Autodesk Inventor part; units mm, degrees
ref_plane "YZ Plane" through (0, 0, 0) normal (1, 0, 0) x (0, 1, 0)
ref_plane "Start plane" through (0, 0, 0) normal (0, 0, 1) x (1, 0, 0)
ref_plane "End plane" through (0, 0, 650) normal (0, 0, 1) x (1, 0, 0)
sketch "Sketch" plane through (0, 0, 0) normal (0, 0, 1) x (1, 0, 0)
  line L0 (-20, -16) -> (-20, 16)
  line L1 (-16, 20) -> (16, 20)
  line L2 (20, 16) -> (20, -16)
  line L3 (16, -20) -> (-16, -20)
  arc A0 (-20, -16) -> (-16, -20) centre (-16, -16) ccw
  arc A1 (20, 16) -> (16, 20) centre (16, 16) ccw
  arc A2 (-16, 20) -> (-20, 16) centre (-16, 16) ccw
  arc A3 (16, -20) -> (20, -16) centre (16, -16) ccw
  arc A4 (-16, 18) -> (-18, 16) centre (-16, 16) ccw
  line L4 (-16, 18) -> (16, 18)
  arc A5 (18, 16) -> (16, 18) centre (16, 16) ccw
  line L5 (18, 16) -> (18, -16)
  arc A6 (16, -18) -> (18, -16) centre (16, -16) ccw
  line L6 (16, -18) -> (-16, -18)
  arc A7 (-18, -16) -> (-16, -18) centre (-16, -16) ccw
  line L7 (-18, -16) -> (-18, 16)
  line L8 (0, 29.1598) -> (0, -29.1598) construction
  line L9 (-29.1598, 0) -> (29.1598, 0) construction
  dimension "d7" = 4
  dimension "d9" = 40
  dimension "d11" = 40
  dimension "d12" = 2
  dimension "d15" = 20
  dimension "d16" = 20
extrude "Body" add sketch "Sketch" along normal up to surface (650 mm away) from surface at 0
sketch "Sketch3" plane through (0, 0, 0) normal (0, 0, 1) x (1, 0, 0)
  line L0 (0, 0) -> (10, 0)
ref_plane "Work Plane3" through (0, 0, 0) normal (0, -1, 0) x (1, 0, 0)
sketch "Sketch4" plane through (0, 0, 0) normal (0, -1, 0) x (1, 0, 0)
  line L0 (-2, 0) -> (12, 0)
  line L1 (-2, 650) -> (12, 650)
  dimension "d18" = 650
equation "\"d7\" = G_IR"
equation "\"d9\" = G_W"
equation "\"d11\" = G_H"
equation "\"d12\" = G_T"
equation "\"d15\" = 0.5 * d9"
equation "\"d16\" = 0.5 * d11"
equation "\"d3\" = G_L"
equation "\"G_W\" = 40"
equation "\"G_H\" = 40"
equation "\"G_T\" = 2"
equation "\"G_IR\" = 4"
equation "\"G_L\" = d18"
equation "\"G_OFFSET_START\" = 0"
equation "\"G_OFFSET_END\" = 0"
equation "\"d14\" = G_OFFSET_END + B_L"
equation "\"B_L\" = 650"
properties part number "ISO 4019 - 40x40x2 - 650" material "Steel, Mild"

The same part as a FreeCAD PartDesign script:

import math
import FreeCAD as App
import Part
import Sketcher

doc = App.newDocument("Part")
body = doc.addObject("PartDesign::Body", "Body")

sketch1 = body.newObject("Sketcher::SketchObject", "Sketch")
sketch1.AttachmentSupport = (doc.getObject("XY_Plane"), [""])
sketch1.MapMode = "FlatFace"
sketch1.addGeometry([
    Part.LineSegment(App.Vector(-20, 16, 0), App.Vector(-20, -16, 0)),
    Part.ArcOfCircle(Part.Circle(App.Vector(-16, -16, 0), App.Vector(0, 0, 1), 4), math.radians(180), math.radians(270)),
    Part.LineSegment(App.Vector(-16, -20, 0), App.Vector(16, -20, 0)),
    Part.ArcOfCircle(Part.Circle(App.Vector(16, -16, 0), App.Vector(0, 0, 1), 4), math.radians(-90), math.radians(0)),
    Part.LineSegment(App.Vector(20, -16, 0), App.Vector(20, 16, 0)),
    Part.ArcOfCircle(Part.Circle(App.Vector(16, 16, 0), App.Vector(0, 0, 1), 4), math.radians(0), math.radians(90)),
    Part.LineSegment(App.Vector(16, 20, 0), App.Vector(-16, 20, 0)),
    Part.ArcOfCircle(Part.Circle(App.Vector(-16, 16, 0), App.Vector(0, 0, 1), 4), math.radians(90), math.radians(180)),
    Part.ArcOfCircle(Part.Circle(App.Vector(-16, 16, 0), App.Vector(0, 0, 1), 2), math.radians(90), math.radians(180)),
    Part.LineSegment(App.Vector(-16, 18, 0), App.Vector(16, 18, 0)),
    Part.ArcOfCircle(Part.Circle(App.Vector(16, 16, 0), App.Vector(0, 0, 1), 2), math.radians(0), math.radians(90)),
    Part.LineSegment(App.Vector(18, 16, 0), App.Vector(18, -16, 0)),
    Part.ArcOfCircle(Part.Circle(App.Vector(16, -16, 0), App.Vector(0, 0, 1), 2), math.radians(-90), math.radians(0)),
    Part.LineSegment(App.Vector(16, -18, 0), App.Vector(-16, -18, 0)),
    Part.ArcOfCircle(Part.Circle(App.Vector(-16, -16, 0), App.Vector(0, 0, 1), 2), math.radians(180), math.radians(270)),
    Part.LineSegment(App.Vector(-18, -16, 0), App.Vector(-18, 16, 0)),
], False)
sketch1.addConstraint([
    Sketcher.Constraint("Tangent", 0, 2, 1, 1),
    Sketcher.Constraint("Tangent", 1, 2, 2, 1),
    Sketcher.Constraint("Tangent", 2, 2, 3, 1),
    Sketcher.Constraint("Tangent", 3, 2, 4, 1),
    Sketcher.Constraint("Tangent", 4, 2, 5, 1),
    Sketcher.Constraint("Tangent", 5, 2, 6, 1),
    Sketcher.Constraint("Tangent", 6, 2, 7, 1),
    Sketcher.Constraint("Tangent", 7, 2, 0, 1),
    Sketcher.Constraint("Tangent", 8, 1, 9, 1),
    Sketcher.Constraint("Tangent", 9, 2, 10, 2),
    Sketcher.Constraint("Tangent", 10, 1, 11, 1),
    Sketcher.Constraint("Tangent", 11, 2, 12, 2),
    Sketcher.Constraint("Tangent", 12, 1, 13, 1),
    Sketcher.Constraint("Tangent", 13, 2, 14, 2),
    Sketcher.Constraint("Tangent", 14, 1, 15, 1),
    Sketcher.Constraint("Tangent", 15, 2, 8, 2),
    Sketcher.Constraint("Vertical", 0),
    Sketcher.Constraint("Horizontal", 2),
    Sketcher.Constraint("Vertical", 4),
    Sketcher.Constraint("Horizontal", 6),
    Sketcher.Constraint("Horizontal", 9),
    Sketcher.Constraint("Vertical", 11),
    Sketcher.Constraint("Horizontal", 13),
    Sketcher.Constraint("Vertical", 15),
    Sketcher.Constraint("Coincident", 8, 3, 7, 3),
    Sketcher.Constraint("Coincident", 10, 3, 5, 3),
    Sketcher.Constraint("Coincident", 12, 3, 3, 3),
    Sketcher.Constraint("Equal", 1, 3),
    Sketcher.Constraint("Equal", 3, 5),
    Sketcher.Constraint("Equal", 5, 7),
    Sketcher.Constraint("Equal", 12, 14),
    Sketcher.Constraint("Symmetric", 1, 3, 5, 3, -1, 1),
    Sketcher.Constraint("Equal", 13, 0),
    Sketcher.Constraint("Radius", 1, 4.0),
    Sketcher.Constraint("Radius", 8, 2.0),
    Sketcher.Constraint("DistanceX", 0, 2, -1, 1, 20.0),
])
pad1 = body.newObject("PartDesign::Pad", "Pad")
pad1.Profile = sketch1
pad1.Length = 650

doc.recompute()
